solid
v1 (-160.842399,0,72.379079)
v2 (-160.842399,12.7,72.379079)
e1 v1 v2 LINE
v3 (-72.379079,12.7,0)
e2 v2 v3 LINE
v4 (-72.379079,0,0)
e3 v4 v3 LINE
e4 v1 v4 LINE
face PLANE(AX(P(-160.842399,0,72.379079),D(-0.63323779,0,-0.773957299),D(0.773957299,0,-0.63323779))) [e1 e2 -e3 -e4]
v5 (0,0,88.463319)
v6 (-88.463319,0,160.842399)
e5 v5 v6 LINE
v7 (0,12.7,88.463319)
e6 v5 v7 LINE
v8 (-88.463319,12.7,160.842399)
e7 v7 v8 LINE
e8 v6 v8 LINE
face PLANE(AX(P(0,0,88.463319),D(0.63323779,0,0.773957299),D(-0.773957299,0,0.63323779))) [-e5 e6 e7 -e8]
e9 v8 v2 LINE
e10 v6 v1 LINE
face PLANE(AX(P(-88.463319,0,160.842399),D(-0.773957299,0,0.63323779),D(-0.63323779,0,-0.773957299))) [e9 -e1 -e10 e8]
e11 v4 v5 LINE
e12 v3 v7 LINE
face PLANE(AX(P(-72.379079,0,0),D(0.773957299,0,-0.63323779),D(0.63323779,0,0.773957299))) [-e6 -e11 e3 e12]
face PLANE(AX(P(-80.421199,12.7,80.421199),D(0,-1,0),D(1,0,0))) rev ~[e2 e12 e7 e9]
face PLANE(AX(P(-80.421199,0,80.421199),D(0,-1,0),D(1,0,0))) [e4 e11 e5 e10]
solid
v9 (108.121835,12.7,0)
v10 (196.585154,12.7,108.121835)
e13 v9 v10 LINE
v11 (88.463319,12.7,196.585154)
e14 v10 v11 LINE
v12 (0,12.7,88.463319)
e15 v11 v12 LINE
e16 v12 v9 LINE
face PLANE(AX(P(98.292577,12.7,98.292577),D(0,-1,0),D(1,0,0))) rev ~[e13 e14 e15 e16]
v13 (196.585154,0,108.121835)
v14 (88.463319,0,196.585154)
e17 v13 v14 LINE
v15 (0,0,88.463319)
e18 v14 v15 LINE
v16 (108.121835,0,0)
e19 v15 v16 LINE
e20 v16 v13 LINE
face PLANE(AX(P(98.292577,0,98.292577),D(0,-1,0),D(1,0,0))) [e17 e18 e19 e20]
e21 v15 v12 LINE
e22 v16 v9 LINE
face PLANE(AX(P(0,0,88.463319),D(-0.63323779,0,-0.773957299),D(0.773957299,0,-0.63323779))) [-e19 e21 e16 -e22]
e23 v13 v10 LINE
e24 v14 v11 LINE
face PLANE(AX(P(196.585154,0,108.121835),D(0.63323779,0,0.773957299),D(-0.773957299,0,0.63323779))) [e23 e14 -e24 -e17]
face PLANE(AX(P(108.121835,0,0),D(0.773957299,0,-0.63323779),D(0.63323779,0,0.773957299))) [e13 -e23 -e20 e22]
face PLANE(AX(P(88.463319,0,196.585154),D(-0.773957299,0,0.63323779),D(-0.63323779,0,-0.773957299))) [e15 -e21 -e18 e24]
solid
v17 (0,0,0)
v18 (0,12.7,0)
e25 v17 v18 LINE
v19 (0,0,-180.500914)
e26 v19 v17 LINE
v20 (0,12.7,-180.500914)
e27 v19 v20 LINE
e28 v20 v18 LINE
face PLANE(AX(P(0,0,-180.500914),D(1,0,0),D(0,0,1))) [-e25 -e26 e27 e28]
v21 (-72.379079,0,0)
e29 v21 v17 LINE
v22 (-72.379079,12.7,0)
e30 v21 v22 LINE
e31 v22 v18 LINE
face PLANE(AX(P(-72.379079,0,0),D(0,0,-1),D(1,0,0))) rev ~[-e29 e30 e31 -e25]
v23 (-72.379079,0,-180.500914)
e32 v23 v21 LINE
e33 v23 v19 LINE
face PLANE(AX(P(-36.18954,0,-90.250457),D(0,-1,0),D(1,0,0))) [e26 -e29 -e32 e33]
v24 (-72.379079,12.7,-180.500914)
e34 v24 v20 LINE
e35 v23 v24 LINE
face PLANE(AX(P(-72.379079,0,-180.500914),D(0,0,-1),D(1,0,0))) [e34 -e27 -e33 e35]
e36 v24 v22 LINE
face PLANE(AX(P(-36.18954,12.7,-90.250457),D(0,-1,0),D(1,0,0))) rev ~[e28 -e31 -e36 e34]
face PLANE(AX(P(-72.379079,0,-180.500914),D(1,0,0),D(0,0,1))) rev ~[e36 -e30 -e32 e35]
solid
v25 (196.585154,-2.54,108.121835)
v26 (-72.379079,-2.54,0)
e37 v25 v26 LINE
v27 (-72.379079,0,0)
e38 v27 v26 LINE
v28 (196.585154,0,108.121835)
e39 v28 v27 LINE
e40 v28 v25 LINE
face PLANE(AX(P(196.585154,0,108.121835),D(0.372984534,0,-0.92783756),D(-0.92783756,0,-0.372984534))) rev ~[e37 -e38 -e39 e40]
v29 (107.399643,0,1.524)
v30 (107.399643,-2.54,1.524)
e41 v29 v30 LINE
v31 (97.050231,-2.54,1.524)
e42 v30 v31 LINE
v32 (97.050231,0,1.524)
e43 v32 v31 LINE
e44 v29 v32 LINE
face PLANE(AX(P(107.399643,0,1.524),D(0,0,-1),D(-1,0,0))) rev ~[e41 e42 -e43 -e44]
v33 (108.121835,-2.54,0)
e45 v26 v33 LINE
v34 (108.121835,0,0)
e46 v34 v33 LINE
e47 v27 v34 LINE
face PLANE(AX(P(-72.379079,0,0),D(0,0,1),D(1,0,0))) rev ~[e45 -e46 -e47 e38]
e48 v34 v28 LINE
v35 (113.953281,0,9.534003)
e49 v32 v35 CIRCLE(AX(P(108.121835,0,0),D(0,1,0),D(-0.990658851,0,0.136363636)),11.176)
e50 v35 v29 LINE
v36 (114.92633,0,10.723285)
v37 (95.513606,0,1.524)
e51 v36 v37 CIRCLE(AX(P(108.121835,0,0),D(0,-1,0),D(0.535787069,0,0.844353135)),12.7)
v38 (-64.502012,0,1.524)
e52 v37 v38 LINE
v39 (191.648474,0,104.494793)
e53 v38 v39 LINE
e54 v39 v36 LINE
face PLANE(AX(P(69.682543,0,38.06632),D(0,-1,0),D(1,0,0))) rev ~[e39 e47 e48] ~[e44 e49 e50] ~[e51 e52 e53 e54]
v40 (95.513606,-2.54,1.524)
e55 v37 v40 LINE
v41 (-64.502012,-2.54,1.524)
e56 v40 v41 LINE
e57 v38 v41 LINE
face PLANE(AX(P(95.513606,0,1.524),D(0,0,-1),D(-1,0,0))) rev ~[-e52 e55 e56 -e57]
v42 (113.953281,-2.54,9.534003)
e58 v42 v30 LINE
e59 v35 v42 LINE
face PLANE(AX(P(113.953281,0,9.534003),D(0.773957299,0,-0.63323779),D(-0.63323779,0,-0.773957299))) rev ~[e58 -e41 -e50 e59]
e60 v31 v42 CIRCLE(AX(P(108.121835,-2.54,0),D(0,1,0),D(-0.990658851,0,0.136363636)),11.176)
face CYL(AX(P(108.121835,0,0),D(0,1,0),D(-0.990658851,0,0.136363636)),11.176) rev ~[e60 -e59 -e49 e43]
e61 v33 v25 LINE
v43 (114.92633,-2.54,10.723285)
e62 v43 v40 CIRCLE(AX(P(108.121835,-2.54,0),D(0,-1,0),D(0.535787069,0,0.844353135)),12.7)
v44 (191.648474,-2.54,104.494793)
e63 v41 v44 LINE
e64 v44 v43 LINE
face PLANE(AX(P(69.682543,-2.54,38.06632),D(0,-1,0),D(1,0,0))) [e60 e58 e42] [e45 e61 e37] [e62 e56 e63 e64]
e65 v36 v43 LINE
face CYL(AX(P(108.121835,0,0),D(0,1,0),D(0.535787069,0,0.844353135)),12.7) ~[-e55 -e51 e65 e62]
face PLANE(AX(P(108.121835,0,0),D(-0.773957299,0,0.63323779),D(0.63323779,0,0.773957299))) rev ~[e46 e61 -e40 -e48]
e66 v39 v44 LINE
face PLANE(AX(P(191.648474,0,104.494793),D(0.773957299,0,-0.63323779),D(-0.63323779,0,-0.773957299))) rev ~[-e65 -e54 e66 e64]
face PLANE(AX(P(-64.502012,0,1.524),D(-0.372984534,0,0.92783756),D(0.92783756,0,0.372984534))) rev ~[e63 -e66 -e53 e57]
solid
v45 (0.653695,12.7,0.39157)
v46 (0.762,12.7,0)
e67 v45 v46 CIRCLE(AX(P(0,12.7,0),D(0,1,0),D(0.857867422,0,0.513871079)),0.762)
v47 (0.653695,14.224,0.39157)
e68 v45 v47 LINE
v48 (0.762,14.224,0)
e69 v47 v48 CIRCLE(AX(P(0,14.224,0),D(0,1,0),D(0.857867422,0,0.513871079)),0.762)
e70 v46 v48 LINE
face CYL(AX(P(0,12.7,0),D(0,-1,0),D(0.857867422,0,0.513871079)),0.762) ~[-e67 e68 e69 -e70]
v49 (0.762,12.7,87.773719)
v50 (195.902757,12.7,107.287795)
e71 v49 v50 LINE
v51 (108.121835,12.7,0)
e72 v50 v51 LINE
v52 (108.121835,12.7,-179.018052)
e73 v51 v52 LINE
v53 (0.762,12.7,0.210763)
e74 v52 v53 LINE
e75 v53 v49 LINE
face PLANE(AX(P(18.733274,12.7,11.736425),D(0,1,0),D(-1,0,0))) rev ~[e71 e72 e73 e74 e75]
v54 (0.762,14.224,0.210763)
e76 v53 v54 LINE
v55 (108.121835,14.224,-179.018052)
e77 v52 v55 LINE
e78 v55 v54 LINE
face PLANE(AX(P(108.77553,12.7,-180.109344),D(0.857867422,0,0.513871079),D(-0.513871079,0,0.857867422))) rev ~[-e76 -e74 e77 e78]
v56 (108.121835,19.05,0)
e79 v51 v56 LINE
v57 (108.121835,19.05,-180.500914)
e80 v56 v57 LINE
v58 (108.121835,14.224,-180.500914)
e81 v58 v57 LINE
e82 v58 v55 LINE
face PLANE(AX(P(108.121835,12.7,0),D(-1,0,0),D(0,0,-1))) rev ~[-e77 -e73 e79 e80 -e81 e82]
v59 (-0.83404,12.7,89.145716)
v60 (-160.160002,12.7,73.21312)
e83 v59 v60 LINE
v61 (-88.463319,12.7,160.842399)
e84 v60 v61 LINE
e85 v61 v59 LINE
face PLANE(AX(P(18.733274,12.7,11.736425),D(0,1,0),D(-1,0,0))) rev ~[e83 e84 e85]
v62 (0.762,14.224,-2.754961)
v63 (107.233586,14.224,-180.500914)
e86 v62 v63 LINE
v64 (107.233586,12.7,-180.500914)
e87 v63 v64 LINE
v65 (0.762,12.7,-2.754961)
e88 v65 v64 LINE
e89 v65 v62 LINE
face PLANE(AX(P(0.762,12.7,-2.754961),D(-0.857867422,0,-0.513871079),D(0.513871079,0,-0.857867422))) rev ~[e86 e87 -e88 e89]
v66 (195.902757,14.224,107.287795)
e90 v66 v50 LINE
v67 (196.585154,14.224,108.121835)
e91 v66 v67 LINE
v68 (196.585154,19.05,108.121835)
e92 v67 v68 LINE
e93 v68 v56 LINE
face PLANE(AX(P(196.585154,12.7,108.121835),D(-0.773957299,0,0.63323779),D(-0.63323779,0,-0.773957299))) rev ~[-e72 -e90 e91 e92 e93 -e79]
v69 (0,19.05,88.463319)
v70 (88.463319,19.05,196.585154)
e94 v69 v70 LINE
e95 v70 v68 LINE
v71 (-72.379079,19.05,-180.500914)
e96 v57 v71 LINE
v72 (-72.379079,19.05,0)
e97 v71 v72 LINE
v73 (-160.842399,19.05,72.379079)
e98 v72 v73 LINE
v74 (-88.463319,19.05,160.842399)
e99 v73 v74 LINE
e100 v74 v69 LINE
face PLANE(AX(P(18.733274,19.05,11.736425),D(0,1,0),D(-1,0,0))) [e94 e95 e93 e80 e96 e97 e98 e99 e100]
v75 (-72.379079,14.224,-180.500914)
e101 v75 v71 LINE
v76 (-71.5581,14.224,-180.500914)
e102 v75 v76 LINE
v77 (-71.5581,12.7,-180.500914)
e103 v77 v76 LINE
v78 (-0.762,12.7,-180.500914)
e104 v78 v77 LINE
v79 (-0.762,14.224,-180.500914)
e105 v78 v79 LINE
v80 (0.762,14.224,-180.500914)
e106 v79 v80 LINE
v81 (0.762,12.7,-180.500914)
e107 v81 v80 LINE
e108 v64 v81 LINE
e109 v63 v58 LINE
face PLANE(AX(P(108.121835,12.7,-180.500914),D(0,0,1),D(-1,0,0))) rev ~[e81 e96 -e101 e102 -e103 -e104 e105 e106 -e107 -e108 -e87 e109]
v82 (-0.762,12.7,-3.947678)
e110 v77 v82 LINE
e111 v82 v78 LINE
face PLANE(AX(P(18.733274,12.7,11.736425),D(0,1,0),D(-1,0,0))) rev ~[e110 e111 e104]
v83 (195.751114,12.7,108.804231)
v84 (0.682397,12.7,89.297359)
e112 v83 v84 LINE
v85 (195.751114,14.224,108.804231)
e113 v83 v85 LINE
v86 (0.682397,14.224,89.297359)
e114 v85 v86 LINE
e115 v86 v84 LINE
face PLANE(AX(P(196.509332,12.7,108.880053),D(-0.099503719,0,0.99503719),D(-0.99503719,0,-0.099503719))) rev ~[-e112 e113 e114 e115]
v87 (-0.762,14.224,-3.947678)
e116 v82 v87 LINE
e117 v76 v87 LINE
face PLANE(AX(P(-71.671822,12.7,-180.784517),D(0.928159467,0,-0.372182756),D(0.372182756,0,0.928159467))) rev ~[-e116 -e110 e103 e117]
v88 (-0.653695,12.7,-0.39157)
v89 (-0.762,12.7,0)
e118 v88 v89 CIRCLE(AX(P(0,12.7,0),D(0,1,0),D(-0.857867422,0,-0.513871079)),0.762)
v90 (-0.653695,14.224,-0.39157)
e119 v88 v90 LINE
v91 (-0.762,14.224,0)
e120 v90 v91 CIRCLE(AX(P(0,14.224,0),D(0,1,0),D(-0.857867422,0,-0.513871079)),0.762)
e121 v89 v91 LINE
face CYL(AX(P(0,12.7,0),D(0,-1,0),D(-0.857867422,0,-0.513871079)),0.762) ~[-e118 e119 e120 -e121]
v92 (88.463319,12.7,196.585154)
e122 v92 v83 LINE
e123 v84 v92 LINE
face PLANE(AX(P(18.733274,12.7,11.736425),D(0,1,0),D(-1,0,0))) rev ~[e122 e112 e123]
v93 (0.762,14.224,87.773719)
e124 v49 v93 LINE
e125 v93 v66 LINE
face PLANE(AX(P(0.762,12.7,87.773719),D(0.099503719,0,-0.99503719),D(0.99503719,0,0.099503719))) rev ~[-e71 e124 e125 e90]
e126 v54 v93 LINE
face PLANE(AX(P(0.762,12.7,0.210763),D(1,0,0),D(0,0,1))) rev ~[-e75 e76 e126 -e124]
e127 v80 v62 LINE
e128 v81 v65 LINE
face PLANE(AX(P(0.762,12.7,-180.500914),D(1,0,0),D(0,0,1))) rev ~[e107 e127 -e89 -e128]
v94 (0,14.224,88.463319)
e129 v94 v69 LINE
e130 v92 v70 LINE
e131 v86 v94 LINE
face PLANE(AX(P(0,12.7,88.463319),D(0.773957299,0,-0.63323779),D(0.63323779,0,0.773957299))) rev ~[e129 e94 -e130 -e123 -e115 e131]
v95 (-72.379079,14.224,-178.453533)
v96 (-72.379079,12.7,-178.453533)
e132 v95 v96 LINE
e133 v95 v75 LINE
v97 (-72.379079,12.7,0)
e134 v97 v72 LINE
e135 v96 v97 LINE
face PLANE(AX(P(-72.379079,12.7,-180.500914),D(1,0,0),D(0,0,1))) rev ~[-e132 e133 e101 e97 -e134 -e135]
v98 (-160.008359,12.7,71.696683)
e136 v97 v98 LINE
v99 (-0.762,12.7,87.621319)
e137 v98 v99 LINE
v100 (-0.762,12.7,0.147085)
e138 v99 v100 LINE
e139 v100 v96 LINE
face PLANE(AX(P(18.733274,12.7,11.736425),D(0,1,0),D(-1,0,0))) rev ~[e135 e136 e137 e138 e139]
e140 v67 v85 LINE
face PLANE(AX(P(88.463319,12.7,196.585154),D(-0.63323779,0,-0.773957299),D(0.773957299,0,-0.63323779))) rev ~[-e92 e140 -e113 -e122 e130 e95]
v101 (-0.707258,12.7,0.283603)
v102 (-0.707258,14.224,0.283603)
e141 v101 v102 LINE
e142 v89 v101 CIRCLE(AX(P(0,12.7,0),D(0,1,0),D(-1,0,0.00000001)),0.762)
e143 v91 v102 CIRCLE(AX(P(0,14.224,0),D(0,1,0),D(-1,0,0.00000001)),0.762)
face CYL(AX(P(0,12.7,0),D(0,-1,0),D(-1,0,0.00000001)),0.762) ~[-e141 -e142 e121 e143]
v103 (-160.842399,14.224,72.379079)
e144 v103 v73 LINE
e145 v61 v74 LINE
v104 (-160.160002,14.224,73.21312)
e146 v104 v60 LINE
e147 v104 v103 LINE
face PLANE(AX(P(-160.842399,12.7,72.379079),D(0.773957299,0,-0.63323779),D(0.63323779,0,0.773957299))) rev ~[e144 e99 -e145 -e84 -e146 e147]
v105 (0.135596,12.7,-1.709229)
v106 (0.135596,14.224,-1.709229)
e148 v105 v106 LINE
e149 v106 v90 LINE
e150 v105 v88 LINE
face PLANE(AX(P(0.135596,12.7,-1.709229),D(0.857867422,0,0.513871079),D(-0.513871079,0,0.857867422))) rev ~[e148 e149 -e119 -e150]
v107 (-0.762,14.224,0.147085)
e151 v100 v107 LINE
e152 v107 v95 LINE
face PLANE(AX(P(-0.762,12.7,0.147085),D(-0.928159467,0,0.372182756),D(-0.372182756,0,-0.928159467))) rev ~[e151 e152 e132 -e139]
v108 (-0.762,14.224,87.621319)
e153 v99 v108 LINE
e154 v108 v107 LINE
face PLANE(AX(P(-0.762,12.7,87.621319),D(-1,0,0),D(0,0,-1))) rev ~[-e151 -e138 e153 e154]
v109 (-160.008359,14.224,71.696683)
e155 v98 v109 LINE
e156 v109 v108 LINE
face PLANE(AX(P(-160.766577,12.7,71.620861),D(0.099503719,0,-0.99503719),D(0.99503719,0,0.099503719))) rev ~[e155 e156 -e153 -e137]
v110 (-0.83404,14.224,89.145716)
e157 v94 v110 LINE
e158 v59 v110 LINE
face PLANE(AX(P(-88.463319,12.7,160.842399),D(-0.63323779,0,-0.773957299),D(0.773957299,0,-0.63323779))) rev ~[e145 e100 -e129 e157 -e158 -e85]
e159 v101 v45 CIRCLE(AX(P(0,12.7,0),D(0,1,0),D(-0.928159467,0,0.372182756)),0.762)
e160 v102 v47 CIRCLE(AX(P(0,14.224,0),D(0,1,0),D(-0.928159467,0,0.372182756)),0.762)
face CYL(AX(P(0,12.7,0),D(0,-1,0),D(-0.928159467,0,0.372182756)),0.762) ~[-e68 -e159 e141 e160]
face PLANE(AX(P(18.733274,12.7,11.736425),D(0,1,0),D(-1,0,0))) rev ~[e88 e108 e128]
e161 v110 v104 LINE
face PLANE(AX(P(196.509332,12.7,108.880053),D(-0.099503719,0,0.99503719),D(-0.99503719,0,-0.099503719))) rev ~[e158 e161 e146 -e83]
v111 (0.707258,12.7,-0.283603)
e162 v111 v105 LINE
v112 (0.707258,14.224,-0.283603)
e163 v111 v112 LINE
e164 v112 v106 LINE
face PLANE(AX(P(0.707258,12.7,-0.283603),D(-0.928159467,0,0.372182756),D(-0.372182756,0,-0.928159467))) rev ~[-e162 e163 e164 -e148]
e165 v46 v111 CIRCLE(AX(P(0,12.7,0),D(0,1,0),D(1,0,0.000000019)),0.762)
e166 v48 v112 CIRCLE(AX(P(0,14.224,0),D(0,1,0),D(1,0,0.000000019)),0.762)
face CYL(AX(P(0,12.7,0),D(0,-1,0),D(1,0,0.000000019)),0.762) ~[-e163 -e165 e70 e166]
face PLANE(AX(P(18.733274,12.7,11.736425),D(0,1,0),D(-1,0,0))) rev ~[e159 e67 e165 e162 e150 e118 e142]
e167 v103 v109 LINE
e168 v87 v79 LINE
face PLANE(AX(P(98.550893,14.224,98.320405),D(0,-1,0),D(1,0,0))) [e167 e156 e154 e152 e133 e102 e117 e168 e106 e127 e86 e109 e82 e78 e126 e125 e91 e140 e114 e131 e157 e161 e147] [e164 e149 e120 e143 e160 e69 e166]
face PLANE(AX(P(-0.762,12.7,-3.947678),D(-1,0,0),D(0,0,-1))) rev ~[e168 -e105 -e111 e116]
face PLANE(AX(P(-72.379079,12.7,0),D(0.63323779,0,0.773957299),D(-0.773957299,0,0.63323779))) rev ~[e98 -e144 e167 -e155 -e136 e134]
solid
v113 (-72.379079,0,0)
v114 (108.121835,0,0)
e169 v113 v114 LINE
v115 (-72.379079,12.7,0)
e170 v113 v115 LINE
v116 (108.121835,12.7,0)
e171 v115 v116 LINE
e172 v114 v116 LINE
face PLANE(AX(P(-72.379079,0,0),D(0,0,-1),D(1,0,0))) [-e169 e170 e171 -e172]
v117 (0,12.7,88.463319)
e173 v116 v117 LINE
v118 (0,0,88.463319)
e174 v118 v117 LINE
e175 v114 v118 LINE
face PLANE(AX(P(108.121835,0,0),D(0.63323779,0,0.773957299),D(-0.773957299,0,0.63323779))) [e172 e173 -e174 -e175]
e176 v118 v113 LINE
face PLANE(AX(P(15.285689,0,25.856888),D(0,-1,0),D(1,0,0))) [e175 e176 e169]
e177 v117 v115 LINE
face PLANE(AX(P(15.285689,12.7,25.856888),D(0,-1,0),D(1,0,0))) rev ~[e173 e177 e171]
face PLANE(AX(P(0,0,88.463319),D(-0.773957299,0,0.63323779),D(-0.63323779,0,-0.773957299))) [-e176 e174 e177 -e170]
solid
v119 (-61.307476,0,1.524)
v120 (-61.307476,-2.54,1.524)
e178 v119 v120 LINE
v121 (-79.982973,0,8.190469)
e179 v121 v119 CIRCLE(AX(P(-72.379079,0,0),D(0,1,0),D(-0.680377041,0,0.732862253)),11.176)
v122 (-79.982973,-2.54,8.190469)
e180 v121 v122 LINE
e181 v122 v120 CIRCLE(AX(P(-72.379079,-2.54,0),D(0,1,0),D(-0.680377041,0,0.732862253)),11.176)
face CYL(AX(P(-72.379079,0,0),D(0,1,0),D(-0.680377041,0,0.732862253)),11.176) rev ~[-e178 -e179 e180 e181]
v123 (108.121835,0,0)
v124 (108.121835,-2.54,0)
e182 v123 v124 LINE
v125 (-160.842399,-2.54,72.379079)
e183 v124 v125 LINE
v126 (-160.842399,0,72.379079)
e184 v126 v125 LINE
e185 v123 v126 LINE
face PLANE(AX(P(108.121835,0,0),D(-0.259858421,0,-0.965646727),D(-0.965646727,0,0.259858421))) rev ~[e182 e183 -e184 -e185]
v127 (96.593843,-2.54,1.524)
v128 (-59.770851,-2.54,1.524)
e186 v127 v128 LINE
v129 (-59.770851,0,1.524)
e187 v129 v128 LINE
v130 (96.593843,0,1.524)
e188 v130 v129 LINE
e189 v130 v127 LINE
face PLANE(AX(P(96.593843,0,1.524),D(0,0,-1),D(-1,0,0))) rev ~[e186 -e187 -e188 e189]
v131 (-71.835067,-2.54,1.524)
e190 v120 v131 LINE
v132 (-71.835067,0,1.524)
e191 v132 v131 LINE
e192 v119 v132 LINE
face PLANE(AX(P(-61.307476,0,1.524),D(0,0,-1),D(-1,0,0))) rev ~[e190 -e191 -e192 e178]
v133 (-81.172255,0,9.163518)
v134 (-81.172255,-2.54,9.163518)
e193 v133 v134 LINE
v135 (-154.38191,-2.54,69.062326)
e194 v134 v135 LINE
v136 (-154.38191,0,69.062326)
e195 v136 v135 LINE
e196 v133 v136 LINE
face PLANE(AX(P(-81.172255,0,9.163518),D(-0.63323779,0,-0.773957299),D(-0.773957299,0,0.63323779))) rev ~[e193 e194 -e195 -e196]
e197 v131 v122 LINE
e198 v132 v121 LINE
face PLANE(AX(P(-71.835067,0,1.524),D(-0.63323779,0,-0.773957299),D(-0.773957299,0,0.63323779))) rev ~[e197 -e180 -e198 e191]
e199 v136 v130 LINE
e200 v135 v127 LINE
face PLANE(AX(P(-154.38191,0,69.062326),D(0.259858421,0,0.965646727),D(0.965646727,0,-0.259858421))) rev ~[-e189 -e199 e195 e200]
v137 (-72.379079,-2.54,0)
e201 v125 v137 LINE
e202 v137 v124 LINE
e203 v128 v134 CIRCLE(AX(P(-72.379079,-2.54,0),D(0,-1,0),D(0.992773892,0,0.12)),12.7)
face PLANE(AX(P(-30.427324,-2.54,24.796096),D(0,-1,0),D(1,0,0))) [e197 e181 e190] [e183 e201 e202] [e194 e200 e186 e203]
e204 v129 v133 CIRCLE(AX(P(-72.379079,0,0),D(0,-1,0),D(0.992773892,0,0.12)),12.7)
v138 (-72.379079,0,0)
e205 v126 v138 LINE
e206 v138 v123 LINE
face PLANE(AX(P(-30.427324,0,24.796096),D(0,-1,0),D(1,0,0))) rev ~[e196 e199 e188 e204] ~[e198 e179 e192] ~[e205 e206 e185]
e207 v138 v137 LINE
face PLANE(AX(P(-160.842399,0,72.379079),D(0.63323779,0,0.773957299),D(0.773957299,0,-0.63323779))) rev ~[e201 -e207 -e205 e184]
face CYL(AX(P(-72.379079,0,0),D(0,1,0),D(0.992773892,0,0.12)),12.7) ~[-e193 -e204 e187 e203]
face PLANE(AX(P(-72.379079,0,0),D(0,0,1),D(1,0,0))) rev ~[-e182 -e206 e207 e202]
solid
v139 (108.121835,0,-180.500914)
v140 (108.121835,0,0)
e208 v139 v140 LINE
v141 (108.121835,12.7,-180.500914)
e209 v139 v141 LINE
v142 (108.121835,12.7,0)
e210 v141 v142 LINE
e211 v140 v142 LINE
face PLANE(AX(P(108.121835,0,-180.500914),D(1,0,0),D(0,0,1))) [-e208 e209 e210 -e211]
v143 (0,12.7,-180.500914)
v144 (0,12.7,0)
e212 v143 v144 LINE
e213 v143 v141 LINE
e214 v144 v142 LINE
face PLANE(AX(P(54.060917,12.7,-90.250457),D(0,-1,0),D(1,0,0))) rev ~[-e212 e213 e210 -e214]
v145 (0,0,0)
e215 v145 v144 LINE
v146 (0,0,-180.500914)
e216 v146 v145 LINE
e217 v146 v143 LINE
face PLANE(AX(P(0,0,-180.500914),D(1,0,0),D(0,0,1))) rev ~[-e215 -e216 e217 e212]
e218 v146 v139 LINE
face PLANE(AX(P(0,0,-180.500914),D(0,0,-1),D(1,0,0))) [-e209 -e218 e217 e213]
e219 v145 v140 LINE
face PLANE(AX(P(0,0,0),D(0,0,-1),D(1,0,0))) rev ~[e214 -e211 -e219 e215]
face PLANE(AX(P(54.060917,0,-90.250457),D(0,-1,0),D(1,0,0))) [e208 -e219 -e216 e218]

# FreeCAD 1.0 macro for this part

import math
import FreeCAD as App
import Part
import Sketcher

V = App.Vector
Q = App.Units.Quantity

doc = App.newDocument("Part")
body = doc.addObject("PartDesign::Body", "Body")

# Sketch on XZ plane
sketch1 = body.newObject("Sketcher::SketchObject", "Sketch")
sketch1.AttachmentSupport = (doc.getObject("XZ_Plane"), [""])
sketch1.MapMode = "FlatFace"
sketch1.addGeometry([
    Part.LineSegment(V(0, 88, 0), V(-72, 0, 0)),
    Part.LineSegment(V(-72, 0, 0), V(108, 0, 0)),
    Part.LineSegment(V(108, 0, 0), V(0, 88, 0)),
], False)
sketch1.addConstraint([
    Sketcher.Constraint("Coincident", 0, 2, 1, 1),
    Sketcher.Constraint("Coincident", 1, 2, 2, 1),
    Sketcher.Constraint("Coincident", 2, 2, 0, 1),
    Sketcher.Constraint("Horizontal", 1),
    Sketcher.Constraint("PointOnObject", 0, 2, -1),
    Sketcher.Constraint("PointOnObject", 2, 2, -2),
    Sketcher.Constraint("Perpendicular", 0, 2),
    Sketcher.Constraint("Distance", 0, Q("4.5 in")),
    Sketcher.Constraint("Distance", 2, Q("5.5 in")),
])
pad1 = body.newObject("PartDesign::Pad", "Pad")
pad1.Profile = sketch1
pad1.Length = Q("0.5 in")
pad1.Reversed = True
body2 = doc.addObject("PartDesign::Body", "Body001")

# Sketch on XZ plane
sketch2 = body2.newObject("Sketcher::SketchObject", "Sketch001")
sketch2.AttachmentSupport = (doc.getObject("XZ_Plane001"), [""])
sketch2.MapMode = "FlatFace"
sketch2.AttachmentOffset = App.Placement(V(0, 0, -0.5 * 25.4), App.Rotation())
sketch2.addGeometry([
    Part.LineSegment(V(197, 108, 0), V(108, 0, 0)),  # 0
    Part.LineSegment(V(108, 0, 0), V(108, -181, 0)),  # 1
    Part.LineSegment(V(108, -181, 0), V(-72, -181, 0)),  # 2
    Part.LineSegment(V(-72, -181, 0), V(-72, 0, 0)),  # 3
    Part.LineSegment(V(-72, 0, 0), V(-161, 72, 0)),  # 4
    Part.LineSegment(V(-161, 72, 0), V(-88, 161, 0)),  # 5
    Part.LineSegment(V(-88, 161, 0), V(0, 88, 0)),  # 6
    Part.LineSegment(V(0, 88, 0), V(88, 197, 0)),  # 7
    Part.LineSegment(V(88, 197, 0), V(197, 108, 0)),  # 8
], False)
sketch2.addConstraint([
    Sketcher.Constraint("Coincident", 0, 2, 1, 1),
    Sketcher.Constraint("Coincident", 1, 2, 2, 1),
    Sketcher.Constraint("Coincident", 2, 2, 3, 1),
    Sketcher.Constraint("Coincident", 3, 2, 4, 1),
    Sketcher.Constraint("Coincident", 4, 2, 5, 1),
    Sketcher.Constraint("Coincident", 5, 2, 6, 1),
    Sketcher.Constraint("Coincident", 6, 2, 7, 1),
    Sketcher.Constraint("Coincident", 7, 2, 8, 1),
    Sketcher.Constraint("Coincident", 8, 2, 0, 1),
    Sketcher.Constraint("Vertical", 1),
    Sketcher.Constraint("Horizontal", 2),
    Sketcher.Constraint("Vertical", 3),
    Sketcher.Constraint("PointOnObject", 0, 2, -1),
    Sketcher.Constraint("PointOnObject", 3, 2, -1),
    Sketcher.Constraint("PointOnObject", 6, 2, -2),
    Sketcher.Constraint("Perpendicular", 0, 4),
    Sketcher.Constraint("Perpendicular", 4, 5),
    Sketcher.Constraint("Perpendicular", 5, 6),
    Sketcher.Constraint("Perpendicular", 6, 7),
    Sketcher.Constraint("Perpendicular", 7, 8),
    Sketcher.Constraint("Equal", 2, 1),
    Sketcher.Constraint("Equal", 4, 5),
    Sketcher.Constraint("Equal", 5, 6),
    Sketcher.Constraint("Equal", 0, 7),
    Sketcher.Constraint("Equal", 7, 8),
    Sketcher.Constraint("Distance", 0, Q("5.5 in")),
    Sketcher.Constraint("Distance", 4, Q("4.5 in")),
])
pad2 = body2.newObject("PartDesign::Pad", "Pad001")
pad2.Profile = sketch2
pad2.Length = Q("0.25 in")
pad2.Reversed = True

# Sketch on XZ plane
sketch3 = body2.newObject("Sketcher::SketchObject", "Sketch002")
sketch3.AttachmentSupport = (doc.getObject("XZ_Plane001"), [""])
sketch3.MapMode = "FlatFace"
sketch3.AttachmentOffset = App.Placement(V(0, 0, -0.5 * 25.4), App.Rotation())
sketch3.addGeometry([
    Part.LineSegment(V(-71.671822, -180.784517, 0), V(-0.762, -3.947678, 0)),  # 0
    Part.LineSegment(V(-0.762, -3.947678, 0), V(-0.762, -180.500914, 0)),  # 1
    Part.ArcOfCircle(Part.Circle(V(0, -180.500914, 0), V(0, 0, 1), 0.762), math.radians(180), math.radians(360)),  # 2
    Part.LineSegment(V(0.762, -180.500914, 0), V(0.762, -2.754961, 0)),  # 3
    Part.LineSegment(V(0.762, -2.754961, 0), V(107.46814, -180.892484, 0)),  # 4
    Part.ArcOfCircle(Part.Circle(V(108.121835, -180.500914, 0), V(0, 0, 1), 0.762), math.radians(-149.077974), math.radians(30.922026)),  # 5
    Part.LineSegment(V(108.77553, -180.109344, 0), V(0.762, 0.210763, 0)),  # 6
    Part.LineSegment(V(0.762, 0.210763, 0), V(0.762, 87.773719, 0)),  # 7
    Part.LineSegment(V(0.762, 87.773719, 0), V(196.660976, 107.363616, 0)),  # 8
    Part.ArcOfCircle(Part.Circle(V(196.585154, 108.121835, 0), V(0, 0, 1), 0.762), math.radians(-84.289407), math.radians(95.710593)),  # 9
    Part.LineSegment(V(196.509332, 108.880053, 0), V(-160.918221, 73.137298, 0)),  # 10
    Part.ArcOfCircle(Part.Circle(V(-160.842399, 72.379079, 0), V(0, 0, 1), 0.762), math.radians(95.710593), math.radians(275.710593)),  # 11
    Part.LineSegment(V(-160.766577, 71.620861, 0), V(-0.762, 87.621319, 0)),  # 12
    Part.LineSegment(V(-0.762, 87.621319, 0), V(-0.762, 0.147085, 0)),  # 13
    Part.LineSegment(V(-0.762, 0.147085, 0), V(-73.086337, -180.217311, 0)),  # 14
    Part.ArcOfCircle(Part.Circle(V(-72.379079, -180.500914, 0), V(0, 0, 1), 0.762), math.radians(158.149703), math.radians(338.149703)),  # 15
    Part.LineSegment(V(0.707258, -0.283603, 0), V(0.135596, -1.709229, 0)),  # 16
    Part.LineSegment(V(0.135596, -1.709229, 0), V(-0.653695, -0.39157, 0)),  # 17
    Part.ArcOfCircle(Part.Circle(V(0, 0, 0), V(0, 0, 1), 0.762), math.radians(179.999999), math.radians(210.922026)),  # 18
    Part.ArcOfCircle(Part.Circle(V(0, 0, 0), V(0, 0, 1), 0.762), math.radians(158.149703), math.radians(179.999999)),  # 19
    Part.ArcOfCircle(Part.Circle(V(0, 0, 0), V(0, 0, 1), 0.762), math.radians(30.922026), math.radians(158.149703)),  # 20
    Part.ArcOfCircle(Part.Circle(V(0, 0, 0), V(0, 0, 1), 0.762), math.radians(0.000001), math.radians(30.922026)),  # 21
    Part.ArcOfCircle(Part.Circle(V(0, 0, 0), V(0, 0, 1), 0.762), math.radians(-21.850297), math.radians(0.000001)),  # 22
], False)
sketch3.addConstraint([
    Sketcher.Constraint("Coincident", 0, 2, 1, 1),
    Sketcher.Constraint("Coincident", 1, 2, 2, 1),
    Sketcher.Constraint("Coincident", 2, 2, 3, 1),
    Sketcher.Constraint("Coincident", 3, 2, 4, 1),
    Sketcher.Constraint("Coincident", 4, 2, 5, 1),
    Sketcher.Constraint("Coincident", 5, 2, 6, 1),
    Sketcher.Constraint("Coincident", 6, 2, 7, 1),
    Sketcher.Constraint("Coincident", 7, 2, 8, 1),
    Sketcher.Constraint("Coincident", 8, 2, 9, 1),
    Sketcher.Constraint("Coincident", 9, 2, 10, 1),
    Sketcher.Constraint("Coincident", 10, 2, 11, 1),
    Sketcher.Constraint("Coincident", 11, 2, 12, 1),
    Sketcher.Constraint("Coincident", 12, 2, 13, 1),
    Sketcher.Constraint("Coincident", 13, 2, 14, 1),
    Sketcher.Constraint("Coincident", 14, 2, 15, 1),
    Sketcher.Constraint("Coincident", 15, 2, 0, 1),
    Sketcher.Constraint("Coincident", 16, 2, 17, 1),
    Sketcher.Constraint("Coincident", 17, 2, 18, 2),
    Sketcher.Constraint("Coincident", 18, 1, 19, 2),
    Sketcher.Constraint("Coincident", 19, 1, 20, 2),
    Sketcher.Constraint("Coincident", 20, 1, 21, 2),
    Sketcher.Constraint("Coincident", 21, 1, 22, 2),
    Sketcher.Constraint("Coincident", 22, 1, 16, 1),
    Sketcher.Constraint("Vertical", 1),
    Sketcher.Constraint("Vertical", 3),
    Sketcher.Constraint("Vertical", 7),
    Sketcher.Constraint("Vertical", 13),
    Sketcher.Constraint("Coincident", 18, 3, -1, 1),
    Sketcher.Constraint("Coincident", 19, 3, -1, 1),
    Sketcher.Constraint("Coincident", 20, 3, -1, 1),
    Sketcher.Constraint("Coincident", 21, 3, -1, 1),
    Sketcher.Constraint("Coincident", 22, 3, -1, 1),
    Sketcher.Constraint("PointOnObject", 2, 3, -2),
    Sketcher.Constraint("PointOnObject", 18, 1, -1),
    Sketcher.Constraint("PointOnObject", 21, 1, -1),
    Sketcher.Constraint("Radius", 2, Q("0.03 in")),
    Sketcher.Constraint("Radius", 5, Q("0.03 in")),
    Sketcher.Constraint("Radius", 9, Q("0.03 in")),
    Sketcher.Constraint("Radius", 11, Q("0.03 in")),
    Sketcher.Constraint("Radius", 15, Q("0.03 in")),
    Sketcher.Constraint("Radius", 18, Q("0.03 in")),
    Sketcher.Constraint("DistanceX", -1, 1, 6, 2, Q("0.03 in")),
    Sketcher.Constraint("DistanceX", 12, 2, -1, 1, Q("0.03 in")),
    Sketcher.Constraint("DistanceY", 12, 2, 7, 2, Q("0.006 in")),
    Sketcher.Constraint("Distance", 0, 190.5242),
    Sketcher.Constraint("DistanceX", 11, 3, -1, 1, 160.842399),
    Sketcher.Constraint("Distance", 12, 160.80261),
    Sketcher.Constraint("Distance", 16, 1.53597),
    Sketcher.Constraint("Distance", 17, 1.53597),
    Sketcher.Constraint("DistanceY", 1, 2, 1, 1, 176.553237),
    Sketcher.Constraint("DistanceY", 3, 1, 3, 2, 177.745953),
    Sketcher.Constraint("DistanceY", 7, 1, 7, 2, 87.562956),
    Sketcher.Constraint("DistanceY", 13, 2, 13, 1, 87.474234),
    Sketcher.Constraint("DistanceY", -1, 1, 11, 3, 72.379079),
    Sketcher.Constraint("DistanceX", 15, 3, -1, 1, 72.379079),
    Sketcher.Constraint("DistanceY", 3, 2, -1, 1, 2.754961),
    Sketcher.Constraint("DistanceX", -1, 1, 4, 2, 107.46814),
    Sketcher.Constraint("DistanceX", -1, 1, 5, 2, 108.77553),
    Sketcher.Constraint("DistanceY", -1, 1, 7, 2, 87.773719),
    Sketcher.Constraint("DistanceX", 10, 2, -1, 1, 160.918221),
    Sketcher.Constraint("DistanceY", 14, 2, -1, 1, 180.217311),
    Sketcher.Constraint("DistanceX", 15, 2, -1, 1, 71.671822),
    Sketcher.Constraint("DistanceY", 16, 2, -1, 1, 1.709229),
    Sketcher.Constraint("DistanceY", 17, 2, -1, 1, 0.39157),
    Sketcher.Constraint("DistanceY", -1, 1, 20, 1, 0.39157),
    Sketcher.Constraint("DistanceX", 5, 3, 9, 3, 88.463319),
    Sketcher.Constraint("DistanceY", 5, 3, 9, 3, 288.622749),
    Sketcher.Constraint("DistanceY", 2, 3, 9, 3, 288.622749),
    Sketcher.Constraint("DistanceY", 15, 3, 9, 3, 288.622749),
    Sketcher.Constraint("DistanceY", 4, 2, 5, 3, 0.39157),
    Sketcher.Constraint("DistanceY", 4, 2, 2, 2, 0.39157),
    Sketcher.Constraint("DistanceX", 9, 3, 8, 2, 0.075822),
    Sketcher.Constraint("DistanceX", 9, 2, 9, 3, 0.075822),
    Sketcher.Constraint("DistanceY", 13, 2, 19, 1, 0.136518),
])
pocket1 = body2.newObject("PartDesign::Pocket", "Pocket")
pocket1.Profile = sketch3
pocket1.Length = Q("0.06 in")
body3 = doc.addObject("PartDesign::Body", "Body002")

# Sketch on XZ plane
sketch4 = body3.newObject("Sketcher::SketchObject", "Sketch003")
sketch4.AttachmentSupport = (doc.getObject("XZ_Plane002"), [""])
sketch4.MapMode = "FlatFace"
sketch4.addGeometry([
    Part.LineSegment(V(-161, 72, 0), V(-72, 0, 0)),
    Part.LineSegment(V(-72, 0, 0), V(0, 88, 0)),
    Part.LineSegment(V(0, 88, 0), V(-88, 161, 0)),
    Part.LineSegment(V(-88, 161, 0), V(-161, 72, 0)),
], False)
sketch4.addConstraint([
    Sketcher.Constraint("Coincident", 0, 2, 1, 1),
    Sketcher.Constraint("Coincident", 1, 2, 2, 1),
    Sketcher.Constraint("Coincident", 2, 2, 3, 1),
    Sketcher.Constraint("Coincident", 3, 2, 0, 1),
    Sketcher.Constraint("PointOnObject", 0, 2, -1),
    Sketcher.Constraint("PointOnObject", 1, 2, -2),
    Sketcher.Constraint("Perpendicular", 0, 1),
    Sketcher.Constraint("Perpendicular", 1, 2),
    Sketcher.Constraint("Perpendicular", 2, 3),
    Sketcher.Constraint("Equal", 0, 1),
    Sketcher.Constraint("Distance", 0, Q("4.5 in")),
    Sketcher.Constraint("DistanceY", -1, 1, 2, 2, 160.842399),
])
pad3 = body3.newObject("PartDesign::Pad", "Pad002")
pad3.Profile = sketch4
pad3.Length = Q("0.5 in")
pad3.Reversed = True
body4 = doc.addObject("PartDesign::Body", "Body003")

# Sketch on XZ plane
sketch5 = body4.newObject("Sketcher::SketchObject", "Sketch004")
sketch5.AttachmentSupport = (doc.getObject("XZ_Plane003"), [""])
sketch5.MapMode = "FlatFace"
sketch5.addGeometry([
    Part.LineSegment(V(-72, 0, 0), V(-72, -181, 0)),
    Part.LineSegment(V(-72, -181, 0), V(0, -181, 0)),
    Part.LineSegment(V(0, -181, 0), V(0, 0, 0)),
    Part.LineSegment(V(0, 0, 0), V(-72, 0, 0)),
], False)
sketch5.addConstraint([
    Sketcher.Constraint("Coincident", 0, 2, 1, 1),
    Sketcher.Constraint("Coincident", 1, 2, 2, 1),
    Sketcher.Constraint("Coincident", 2, 2, 3, 1),
    Sketcher.Constraint("Coincident", 3, 2, 0, 1),
    Sketcher.Constraint("Vertical", 0),
    Sketcher.Constraint("Horizontal", 1),
    Sketcher.Constraint("Vertical", 2),
    Sketcher.Constraint("Horizontal", 3),
    Sketcher.Constraint("Coincident", 2, 2, -1, 1),
    Sketcher.Constraint("DistanceX", 1, 1, 1, 2, 72.379079),
    Sketcher.Constraint("DistanceY", 0, 2, 0, 1, 180.500914),
])
pad4 = body4.newObject("PartDesign::Pad", "Pad003")
pad4.Profile = sketch5
pad4.Length = Q("0.5 in")
pad4.Reversed = True
body5 = doc.addObject("PartDesign::Body", "Body004")

# Sketch on XZ plane
sketch6 = body5.newObject("Sketcher::SketchObject", "Sketch005")
sketch6.AttachmentSupport = (doc.getObject("XZ_Plane004"), [""])
sketch6.MapMode = "FlatFace"
sketch6.addGeometry([
    Part.LineSegment(V(88, 197, 0), V(0, 88, 0)),
    Part.LineSegment(V(0, 88, 0), V(108, 0, 0)),
    Part.LineSegment(V(108, 0, 0), V(197, 108, 0)),
    Part.LineSegment(V(197, 108, 0), V(88, 197, 0)),
], False)
sketch6.addConstraint([
    Sketcher.Constraint("Coincident", 0, 2, 1, 1),
    Sketcher.Constraint("Coincident", 1, 2, 2, 1),
    Sketcher.Constraint("Coincident", 2, 2, 3, 1),
    Sketcher.Constraint("Coincident", 3, 2, 0, 1),
    Sketcher.Constraint("PointOnObject", 0, 2, -2),
    Sketcher.Constraint("PointOnObject", 1, 2, -1),
    Sketcher.Constraint("Perpendicular", 0, 1),
    Sketcher.Constraint("Perpendicular", 1, 2),
    Sketcher.Constraint("Perpendicular", 2, 3),
    Sketcher.Constraint("Equal", 0, 1),
    Sketcher.Constraint("Distance", 0, Q("5.5 in")),
    Sketcher.Constraint("DistanceY", -1, 1, 0, 2, 88.463319),
])
pad5 = body5.newObject("PartDesign::Pad", "Pad004")
pad5.Profile = sketch6
pad5.Length = Q("0.5 in")
pad5.Reversed = True
body6 = doc.addObject("PartDesign::Body", "Body005")

# Sketch on XZ plane
sketch7 = body6.newObject("Sketcher::SketchObject", "Sketch006")
sketch7.AttachmentSupport = (doc.getObject("XZ_Plane005"), [""])
sketch7.MapMode = "FlatFace"
sketch7.addGeometry([
    Part.LineSegment(V(0, 0, 0), V(0, -181, 0)),
    Part.LineSegment(V(0, -181, 0), V(108, -181, 0)),
    Part.LineSegment(V(108, -181, 0), V(108, 0, 0)),
    Part.LineSegment(V(108, 0, 0), V(0, 0, 0)),
], False)
sketch7.addConstraint([
    Sketcher.Constraint("Coincident", 0, 2, 1, 1),
    Sketcher.Constraint("Coincident", 1, 2, 2, 1),
    Sketcher.Constraint("Coincident", 2, 2, 3, 1),
    Sketcher.Constraint("Coincident", 3, 2, 0, 1),
    Sketcher.Constraint("Vertical", 0),
    Sketcher.Constraint("Horizontal", 1),
    Sketcher.Constraint("Vertical", 2),
    Sketcher.Constraint("Horizontal", 3),
    Sketcher.Constraint("Coincident", 3, 2, -1, 1),
    Sketcher.Constraint("DistanceX", 1, 1, 1, 2, 108.121835),
    Sketcher.Constraint("DistanceY", 0, 2, 0, 1, 180.500914),
])
pad6 = body6.newObject("PartDesign::Pad", "Pad005")
pad6.Profile = sketch7
pad6.Length = Q("0.5 in")
pad6.Reversed = True
body7 = doc.addObject("PartDesign::Body", "Body006")

# Sketch on XZ plane
sketch8 = body7.newObject("Sketcher::SketchObject", "Sketch007")
sketch8.AttachmentSupport = (doc.getObject("XZ_Plane006"), [""])
sketch8.MapMode = "FlatFace"
sketch8.addGeometry([
    Part.LineSegment(V(-161, 72, 0), V(-72, 0, 0)),  # 0
    Part.LineSegment(V(-72, 0, 0), V(108, 0, 0)),  # 1
    Part.LineSegment(V(108, 0, 0), V(-161, 72, 0)),  # 2
    Part.ArcOfCircle(Part.Circle(V(-72, 0, 0), V(0, 0, 1), 11), math.radians(8), math.radians(133)),  # 3
    Part.LineSegment(V(-61, 2, 0), V(-72, 2, 0)),  # 4
    Part.LineSegment(V(-72, 2, 0), V(-80, 8, 0)),  # 5
    Part.LineSegment(V(-81, 9, 0), V(-154, 69, 0)),  # 6
    Part.LineSegment(V(-154, 69, 0), V(97, 2, 0)),  # 7
    Part.LineSegment(V(97, 2, 0), V(-60, 2, 0)),  # 8
    Part.ArcOfCircle(Part.Circle(V(-72, 0, 0), V(0, 0, 1), 13), math.radians(7), math.radians(134)),  # 9
], False)
sketch8.addConstraint([
    Sketcher.Constraint("Coincident", 0, 2, 1, 1),
    Sketcher.Constraint("Coincident", 1, 2, 2, 1),
    Sketcher.Constraint("Coincident", 2, 2, 0, 1),
    Sketcher.Constraint("Coincident", 3, 1, 4, 1),
    Sketcher.Constraint("Coincident", 4, 2, 5, 1),
    Sketcher.Constraint("Coincident", 5, 2, 3, 2),
    Sketcher.Constraint("Coincident", 6, 2, 7, 1),
    Sketcher.Constraint("Coincident", 7, 2, 8, 1),
    Sketcher.Constraint("Coincident", 8, 2, 9, 1),
    Sketcher.Constraint("Coincident", 9, 2, 6, 1),
    Sketcher.Constraint("Horizontal", 1),
    Sketcher.Constraint("Horizontal", 4),
    Sketcher.Constraint("Horizontal", 8),
    Sketcher.Constraint("Coincident", 9, 3, 3, 3),
    Sketcher.Constraint("Coincident", 0, 2, 3, 3),
    Sketcher.Constraint("PointOnObject", 3, 3, -1),
    Sketcher.Constraint("Parallel", 0, 5),
    Sketcher.Constraint("Parallel", 5, 6),
    Sketcher.Constraint("Parallel", 2, 7),
    Sketcher.Constraint("Horizontal", 4, 2, 7, 2),
    Sketcher.Constraint("Radius", 9, Q("0.5 in")),
    Sketcher.Constraint("Radius", 3, Q("0.44 in")),
    Sketcher.Constraint("Distance", 0, Q("4.5 in")),
    Sketcher.Constraint("DistanceY", -1, 1, 3, 1, Q("0.06 in")),
    Sketcher.Constraint("DistanceX", 4, 2, 4, 1, 10.527591),
    Sketcher.Constraint("DistanceX", 2, 2, -1, 1, 160.842399),
    Sketcher.Constraint("Distance", 5, 10.527591),
    Sketcher.Constraint("DistanceX", 1, 1, 1, 2, 180.500914),
    Sketcher.Constraint("DistanceX", 8, 2, 8, 1, 156.364694),
    Sketcher.Constraint("DistanceX", 6, 2, -1, 1, 154.38191),
])
pad7 = body7.newObject("PartDesign::Pad", "Pad006")
pad7.Profile = sketch8
pad7.Length = Q("0.1 in")
body8 = doc.addObject("PartDesign::Body", "Body007")

# Sketch on XZ plane
sketch9 = body8.newObject("Sketcher::SketchObject", "Sketch008")
sketch9.AttachmentSupport = (doc.getObject("XZ_Plane007"), [""])
sketch9.MapMode = "FlatFace"
sketch9.addGeometry([
    Part.LineSegment(V(-72.379079, 0, 0), V(108.121835, 0, 0)),  # 0
    Part.LineSegment(V(108.121835, 0, 0), V(196.585154, 108.121835, 0)),  # 1
    Part.LineSegment(V(196.585154, 108.121835, 0), V(-72.379079, 0, 0)),  # 2
    Part.ArcOfCircle(Part.Circle(V(108.121835, 0, 0), V(0, 0, 1), 11.176), math.radians(58.548073), math.radians(172.16252)),  # 3
    Part.LineSegment(V(113.953281, 9.534003, 0), V(107.399643, 1.524, 0)),  # 4
    Part.LineSegment(V(107.399643, 1.524, 0), V(97.050231, 1.524, 0)),  # 5
    Part.ArcOfCircle(Part.Circle(V(108.121835, 0, 0), V(0, 0, 1), 12.7), math.radians(57.602696), math.radians(173.107897)),  # 6
    Part.LineSegment(V(95.513606, 1.524, 0), V(-64.502012, 1.524, 0)),  # 7
    Part.LineSegment(V(-64.502012, 1.524, 0), V(191.648474, 104.494793, 0)),  # 8
    Part.LineSegment(V(191.648474, 104.494793, 0), V(114.92633, 10.723285, 0)),  # 9
], False)
sketch9.addConstraint([
    Sketcher.Constraint("Coincident", 0, 2, 1, 1),
    Sketcher.Constraint("Coincident", 1, 2, 2, 1),
    Sketcher.Constraint("Coincident", 2, 2, 0, 1),
    Sketcher.Constraint("Coincident", 3, 1, 4, 1),
    Sketcher.Constraint("Coincident", 4, 2, 5, 1),
    Sketcher.Constraint("Coincident", 5, 2, 3, 2),
    Sketcher.Constraint("Coincident", 6, 2, 7, 1),
    Sketcher.Constraint("Coincident", 7, 2, 8, 1),
    Sketcher.Constraint("Coincident", 8, 2, 9, 1),
    Sketcher.Constraint("Coincident", 9, 2, 6, 1),
    Sketcher.Constraint("Horizontal", 0),
    Sketcher.Constraint("Horizontal", 5),
    Sketcher.Constraint("Horizontal", 7),
    Sketcher.Constraint("Coincident", 6, 3, 3, 3),
    Sketcher.Constraint("Coincident", 0, 2, 3, 3),
    Sketcher.Constraint("PointOnObject", 3, 3, -1),
    Sketcher.Constraint("Radius", 6, Q("0.5 in")),
    Sketcher.Constraint("Radius", 3, Q("0.44 in")),
    Sketcher.Constraint("Distance", 1, Q("5.5 in")),
    Sketcher.Constraint("DistanceY", -1, 1, 4, 2, Q("0.06 in")),
    Sketcher.Constraint("DistanceY", -1, 1, 6, 2, Q("0.06 in")),
    Sketcher.Constraint("DistanceX", 5, 2, 5, 1, 10.349412),
    Sketcher.Constraint("Distance", 2, 289.88289),
    Sketcher.Constraint("Distance", 4, 10.349412),
    Sketcher.Constraint("DistanceX", 0, 1, 0, 2, 180.500914),
    Sketcher.Constraint("DistanceX", 7, 2, 7, 1, 160.015618),
    Sketcher.Constraint("DistanceX", 2, 2, -1, 1, 72.379079),
    Sketcher.Constraint("DistanceX", -1, 1, 9, 2, 114.92633),
    Sketcher.Constraint("DistanceX", 8, 2, 1, 2, 4.93668),
    Sketcher.Constraint("DistanceY", 8, 2, 1, 2, 3.627042),
])
pad8 = body8.newObject("PartDesign::Pad", "Pad007")
pad8.Profile = sketch9
pad8.Length = Q("0.1 in")

doc.recompute()
